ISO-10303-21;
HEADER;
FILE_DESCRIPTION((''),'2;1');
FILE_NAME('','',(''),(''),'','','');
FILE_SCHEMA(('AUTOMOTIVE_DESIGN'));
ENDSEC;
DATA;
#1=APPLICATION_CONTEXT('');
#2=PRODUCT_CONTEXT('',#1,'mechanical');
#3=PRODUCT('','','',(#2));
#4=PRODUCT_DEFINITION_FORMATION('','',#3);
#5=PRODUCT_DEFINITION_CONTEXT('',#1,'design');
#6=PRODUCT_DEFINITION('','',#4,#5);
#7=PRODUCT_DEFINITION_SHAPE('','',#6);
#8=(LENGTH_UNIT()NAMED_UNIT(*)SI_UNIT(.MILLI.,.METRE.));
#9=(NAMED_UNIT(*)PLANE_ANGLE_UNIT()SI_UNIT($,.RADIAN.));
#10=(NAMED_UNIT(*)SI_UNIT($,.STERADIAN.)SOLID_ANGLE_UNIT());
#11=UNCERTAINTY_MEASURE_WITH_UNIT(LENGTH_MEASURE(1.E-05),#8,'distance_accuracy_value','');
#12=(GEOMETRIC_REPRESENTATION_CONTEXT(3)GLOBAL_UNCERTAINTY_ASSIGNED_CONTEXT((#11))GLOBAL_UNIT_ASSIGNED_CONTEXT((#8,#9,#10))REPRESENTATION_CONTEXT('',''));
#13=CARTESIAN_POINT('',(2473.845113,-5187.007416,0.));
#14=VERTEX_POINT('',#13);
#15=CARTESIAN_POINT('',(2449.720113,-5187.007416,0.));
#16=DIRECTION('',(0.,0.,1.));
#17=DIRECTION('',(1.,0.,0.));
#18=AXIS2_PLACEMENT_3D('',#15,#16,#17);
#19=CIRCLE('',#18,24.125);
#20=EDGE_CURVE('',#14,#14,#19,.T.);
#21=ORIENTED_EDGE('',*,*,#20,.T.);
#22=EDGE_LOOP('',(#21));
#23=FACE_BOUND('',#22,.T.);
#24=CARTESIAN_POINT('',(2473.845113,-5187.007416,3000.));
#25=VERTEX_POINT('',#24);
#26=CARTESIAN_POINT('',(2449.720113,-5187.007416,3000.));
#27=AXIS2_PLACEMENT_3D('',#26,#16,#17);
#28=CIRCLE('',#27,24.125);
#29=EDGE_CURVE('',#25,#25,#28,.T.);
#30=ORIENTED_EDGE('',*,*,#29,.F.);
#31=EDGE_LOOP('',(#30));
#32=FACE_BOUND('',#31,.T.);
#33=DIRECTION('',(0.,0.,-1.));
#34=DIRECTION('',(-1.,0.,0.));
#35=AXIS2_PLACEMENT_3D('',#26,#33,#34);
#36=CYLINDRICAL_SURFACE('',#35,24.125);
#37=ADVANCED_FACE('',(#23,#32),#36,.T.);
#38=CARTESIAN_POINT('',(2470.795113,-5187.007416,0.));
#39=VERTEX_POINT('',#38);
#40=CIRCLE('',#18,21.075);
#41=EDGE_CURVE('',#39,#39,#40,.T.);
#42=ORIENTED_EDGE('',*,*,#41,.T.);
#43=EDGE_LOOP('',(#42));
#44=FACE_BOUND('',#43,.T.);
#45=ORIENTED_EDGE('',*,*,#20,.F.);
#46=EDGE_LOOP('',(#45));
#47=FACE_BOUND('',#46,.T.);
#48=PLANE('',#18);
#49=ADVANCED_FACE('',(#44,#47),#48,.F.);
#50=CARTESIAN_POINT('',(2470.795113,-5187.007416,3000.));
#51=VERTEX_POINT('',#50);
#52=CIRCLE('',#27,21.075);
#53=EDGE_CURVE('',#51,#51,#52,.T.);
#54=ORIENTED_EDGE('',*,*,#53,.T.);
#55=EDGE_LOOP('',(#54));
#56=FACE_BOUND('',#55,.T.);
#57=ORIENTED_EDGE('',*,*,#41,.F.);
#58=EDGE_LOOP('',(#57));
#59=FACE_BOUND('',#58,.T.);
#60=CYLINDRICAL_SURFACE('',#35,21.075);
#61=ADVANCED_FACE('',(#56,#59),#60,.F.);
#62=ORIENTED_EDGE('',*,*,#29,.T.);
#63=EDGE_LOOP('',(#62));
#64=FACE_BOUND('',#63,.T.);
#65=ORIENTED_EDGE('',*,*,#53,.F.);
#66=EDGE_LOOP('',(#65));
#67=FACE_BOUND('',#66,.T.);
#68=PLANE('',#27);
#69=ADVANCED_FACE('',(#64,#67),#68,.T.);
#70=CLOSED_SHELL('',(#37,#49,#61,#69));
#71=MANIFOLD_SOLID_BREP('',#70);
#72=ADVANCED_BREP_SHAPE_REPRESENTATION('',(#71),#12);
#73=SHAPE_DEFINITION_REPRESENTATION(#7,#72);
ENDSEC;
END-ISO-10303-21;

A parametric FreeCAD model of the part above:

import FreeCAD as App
import Part
import Sketcher

V = App.Vector
Q = App.Units.Quantity

doc = App.newDocument("Part")
body = doc.addObject("PartDesign::Body", "Body")

# Sketch on XY plane
sketch1 = doc.addObject("Sketcher::SketchObject", "Sketch")
body.addObject(sketch1)
sketch1.AttachmentSupport = (doc.XY_Plane, [""])
sketch1.MapMode = "FlatFace"
sketch1.addGeometry([
    Part.Circle(V(2450, -5187, 0), V(0, 0, 1), 24),
    Part.Circle(V(2450, -5187, 0), V(0, 0, 1), 21),
], False)
sketch1.addConstraint([
    Sketcher.Constraint("Coincident", 1, 3, 0, 3),
    Sketcher.Constraint("Diameter", 0, Q("48.25 mm")),
    Sketcher.Constraint("Diameter", 1, Q("42.15 mm")),
    Sketcher.Constraint("DistanceX", -1, 1, 0, 3, Q("2449.720113 mm")),
    Sketcher.Constraint("DistanceY", 0, 3, -1, 1, Q("5187.007416 mm")),
])
pad1 = doc.addObject("PartDesign::Pad", "Pad")
body.addObject(pad1)
pad1.Profile = sketch1
pad1.Length = 3000

doc.recompute()
